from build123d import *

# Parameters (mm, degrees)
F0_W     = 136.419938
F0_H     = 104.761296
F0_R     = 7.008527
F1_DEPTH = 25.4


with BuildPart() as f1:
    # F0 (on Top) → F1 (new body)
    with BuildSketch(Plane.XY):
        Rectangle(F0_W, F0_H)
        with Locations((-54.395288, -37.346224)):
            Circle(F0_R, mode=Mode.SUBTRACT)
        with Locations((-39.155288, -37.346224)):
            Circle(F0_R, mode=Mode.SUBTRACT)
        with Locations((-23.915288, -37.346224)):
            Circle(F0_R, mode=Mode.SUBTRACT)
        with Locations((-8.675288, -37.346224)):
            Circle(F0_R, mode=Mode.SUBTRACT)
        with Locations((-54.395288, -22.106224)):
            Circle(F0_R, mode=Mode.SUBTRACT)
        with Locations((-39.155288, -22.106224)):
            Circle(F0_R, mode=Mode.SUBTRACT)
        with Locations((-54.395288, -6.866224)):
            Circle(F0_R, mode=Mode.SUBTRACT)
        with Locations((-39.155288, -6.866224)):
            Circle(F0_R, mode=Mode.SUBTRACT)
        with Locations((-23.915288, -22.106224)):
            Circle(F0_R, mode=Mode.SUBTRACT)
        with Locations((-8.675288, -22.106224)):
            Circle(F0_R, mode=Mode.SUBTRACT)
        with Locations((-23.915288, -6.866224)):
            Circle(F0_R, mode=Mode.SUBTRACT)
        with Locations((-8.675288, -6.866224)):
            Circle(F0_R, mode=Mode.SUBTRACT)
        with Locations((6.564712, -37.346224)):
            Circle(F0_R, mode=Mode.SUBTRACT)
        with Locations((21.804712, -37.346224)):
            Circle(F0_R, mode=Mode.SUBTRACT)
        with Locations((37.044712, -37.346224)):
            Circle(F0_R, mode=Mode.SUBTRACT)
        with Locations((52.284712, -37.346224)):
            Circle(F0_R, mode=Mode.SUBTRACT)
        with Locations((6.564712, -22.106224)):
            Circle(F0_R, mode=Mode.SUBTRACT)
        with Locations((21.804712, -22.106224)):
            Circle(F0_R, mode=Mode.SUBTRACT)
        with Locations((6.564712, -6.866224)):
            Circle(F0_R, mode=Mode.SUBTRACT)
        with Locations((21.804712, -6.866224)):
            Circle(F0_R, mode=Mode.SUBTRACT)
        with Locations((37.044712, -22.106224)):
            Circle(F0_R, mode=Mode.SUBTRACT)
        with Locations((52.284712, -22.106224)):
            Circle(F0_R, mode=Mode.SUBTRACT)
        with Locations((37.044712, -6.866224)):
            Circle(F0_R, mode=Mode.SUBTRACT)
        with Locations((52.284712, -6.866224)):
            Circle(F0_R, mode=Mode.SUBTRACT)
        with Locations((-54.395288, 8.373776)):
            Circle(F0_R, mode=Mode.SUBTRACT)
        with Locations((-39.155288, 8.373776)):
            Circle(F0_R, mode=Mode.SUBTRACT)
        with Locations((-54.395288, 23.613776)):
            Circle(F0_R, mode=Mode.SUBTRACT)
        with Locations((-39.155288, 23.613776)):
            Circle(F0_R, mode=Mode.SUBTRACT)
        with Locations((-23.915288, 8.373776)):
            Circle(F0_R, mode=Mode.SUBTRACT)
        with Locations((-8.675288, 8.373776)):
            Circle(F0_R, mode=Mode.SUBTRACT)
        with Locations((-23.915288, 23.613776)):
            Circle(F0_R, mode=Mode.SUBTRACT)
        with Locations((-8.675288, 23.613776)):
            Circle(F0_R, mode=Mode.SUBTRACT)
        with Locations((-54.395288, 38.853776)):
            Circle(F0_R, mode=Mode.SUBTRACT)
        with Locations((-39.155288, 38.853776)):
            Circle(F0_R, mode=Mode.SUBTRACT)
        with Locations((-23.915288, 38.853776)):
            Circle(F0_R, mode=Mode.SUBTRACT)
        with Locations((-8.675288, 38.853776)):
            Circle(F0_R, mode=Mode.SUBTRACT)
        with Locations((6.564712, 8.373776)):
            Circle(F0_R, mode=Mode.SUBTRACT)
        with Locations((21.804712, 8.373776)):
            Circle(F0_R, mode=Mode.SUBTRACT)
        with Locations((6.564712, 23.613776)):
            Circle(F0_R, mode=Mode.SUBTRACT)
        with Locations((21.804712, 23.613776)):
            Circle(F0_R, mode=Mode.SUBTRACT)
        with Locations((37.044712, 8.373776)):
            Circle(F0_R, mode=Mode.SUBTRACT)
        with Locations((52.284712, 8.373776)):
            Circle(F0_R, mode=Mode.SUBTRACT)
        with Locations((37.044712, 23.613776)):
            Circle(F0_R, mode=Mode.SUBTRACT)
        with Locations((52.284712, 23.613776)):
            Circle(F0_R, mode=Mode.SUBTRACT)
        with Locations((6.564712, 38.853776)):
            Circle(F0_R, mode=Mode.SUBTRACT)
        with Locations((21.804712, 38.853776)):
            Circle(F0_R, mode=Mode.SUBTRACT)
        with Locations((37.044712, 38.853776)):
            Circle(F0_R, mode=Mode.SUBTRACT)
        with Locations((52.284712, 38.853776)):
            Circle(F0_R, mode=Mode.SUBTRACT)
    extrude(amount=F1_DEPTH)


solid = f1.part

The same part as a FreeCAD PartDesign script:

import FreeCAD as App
import Part
import Sketcher
from FreeCAD import Vector
Q = App.Units.Quantity

doc = App.newDocument("Part")
body = doc.addObject("PartDesign::Body", "Body")

# Sketch on XY plane
sketch1 = doc.addObject("Sketcher::SketchObject", "Sketch")
body.addObject(sketch1)
sketch1.AttachmentSupport = (doc.XY_Plane, [""])
sketch1.MapMode = "FlatFace"
sketch1.addGeometry(Part.LineSegment(Vector(-68, 52, 0), Vector(-68, -52, 0)), False)
sketch1.addGeometry(Part.LineSegment(Vector(-68, -52, 0), Vector(68, -52, 0)), False)
sketch1.addGeometry(Part.LineSegment(Vector(68, -52, 0), Vector(68, 52, 0)), False)
sketch1.addGeometry(Part.LineSegment(Vector(68, 52, 0), Vector(-68, 52, 0)), False)
sketch1.addGeometry(Part.Circle(Vector(-54, -37, 0), Vector(0, 0, 1), 7), False)
sketch1.addGeometry(Part.Circle(Vector(-39, -37, 0), Vector(0, 0, 1), 7), False)
sketch1.addGeometry(Part.Circle(Vector(-54, -22, 0), Vector(0, 0, 1), 7), False)
sketch1.addGeometry(Part.Circle(Vector(-39, -22, 0), Vector(0, 0, 1), 7), False)
sketch1.addGeometry(Part.Circle(Vector(-24, -37, 0), Vector(0, 0, 1), 7), False)
sketch1.addGeometry(Part.Circle(Vector(-9, -37, 0), Vector(0, 0, 1), 7), False)
sketch1.addGeometry(Part.Circle(Vector(-24, -22, 0), Vector(0, 0, 1), 7), False)
sketch1.addGeometry(Part.Circle(Vector(-9, -22, 0), Vector(0, 0, 1), 7), False)
sketch1.addGeometry(Part.Circle(Vector(-54, -7, 0), Vector(0, 0, 1), 7), False)
sketch1.addGeometry(Part.Circle(Vector(-39, -7, 0), Vector(0, 0, 1), 7), False)
sketch1.addGeometry(Part.Circle(Vector(-24, -7, 0), Vector(0, 0, 1), 7), False)
sketch1.addGeometry(Part.Circle(Vector(-9, -7, 0), Vector(0, 0, 1), 7), False)
sketch1.addGeometry(Part.Circle(Vector(7, -37, 0), Vector(0, 0, 1), 7), False)
sketch1.addGeometry(Part.Circle(Vector(22, -37, 0), Vector(0, 0, 1), 7), False)
sketch1.addGeometry(Part.Circle(Vector(7, -22, 0), Vector(0, 0, 1), 7), False)
sketch1.addGeometry(Part.Circle(Vector(22, -22, 0), Vector(0, 0, 1), 7), False)
sketch1.addGeometry(Part.Circle(Vector(37, -37, 0), Vector(0, 0, 1), 7), False)
sketch1.addGeometry(Part.Circle(Vector(52, -37, 0), Vector(0, 0, 1), 7), False)
sketch1.addGeometry(Part.Circle(Vector(37, -22, 0), Vector(0, 0, 1), 7), False)
sketch1.addGeometry(Part.Circle(Vector(52, -22, 0), Vector(0, 0, 1), 7), False)
sketch1.addGeometry(Part.Circle(Vector(7, -7, 0), Vector(0, 0, 1), 7), False)
sketch1.addGeometry(Part.Circle(Vector(22, -7, 0), Vector(0, 0, 1), 7), False)
sketch1.addGeometry(Part.Circle(Vector(37, -7, 0), Vector(0, 0, 1), 7), False)
sketch1.addGeometry(Part.Circle(Vector(52, -7, 0), Vector(0, 0, 1), 7), False)
sketch1.addGeometry(Part.Circle(Vector(-54, 8, 0), Vector(0, 0, 1), 7), False)
sketch1.addGeometry(Part.Circle(Vector(-39, 8, 0), Vector(0, 0, 1), 7), False)
sketch1.addGeometry(Part.Circle(Vector(-24, 8, 0), Vector(0, 0, 1), 7), False)
sketch1.addGeometry(Part.Circle(Vector(-9, 8, 0), Vector(0, 0, 1), 7), False)
sketch1.addGeometry(Part.Circle(Vector(-54, 24, 0), Vector(0, 0, 1), 7), False)
sketch1.addGeometry(Part.Circle(Vector(-39, 24, 0), Vector(0, 0, 1), 7), False)
sketch1.addGeometry(Part.Circle(Vector(-54, 39, 0), Vector(0, 0, 1), 7), False)
sketch1.addGeometry(Part.Circle(Vector(-39, 39, 0), Vector(0, 0, 1), 7), False)
sketch1.addGeometry(Part.Circle(Vector(-24, 24, 0), Vector(0, 0, 1), 7), False)
sketch1.addGeometry(Part.Circle(Vector(-9, 24, 0), Vector(0, 0, 1), 7), False)
sketch1.addGeometry(Part.Circle(Vector(-24, 39, 0), Vector(0, 0, 1), 7), False)
sketch1.addGeometry(Part.Circle(Vector(-9, 39, 0), Vector(0, 0, 1), 7), False)
sketch1.addGeometry(Part.Circle(Vector(7, 8, 0), Vector(0, 0, 1), 7), False)
sketch1.addGeometry(Part.Circle(Vector(22, 8, 0), Vector(0, 0, 1), 7), False)
sketch1.addGeometry(Part.Circle(Vector(37, 8, 0), Vector(0, 0, 1), 7), False)
sketch1.addGeometry(Part.Circle(Vector(52, 8, 0), Vector(0, 0, 1), 7), False)
sketch1.addGeometry(Part.Circle(Vector(7, 24, 0), Vector(0, 0, 1), 7), False)
sketch1.addGeometry(Part.Circle(Vector(22, 24, 0), Vector(0, 0, 1), 7), False)
sketch1.addGeometry(Part.Circle(Vector(7, 39, 0), Vector(0, 0, 1), 7), False)
sketch1.addGeometry(Part.Circle(Vector(22, 39, 0), Vector(0, 0, 1), 7), False)
sketch1.addGeometry(Part.Circle(Vector(37, 24, 0), Vector(0, 0, 1), 7), False)
sketch1.addGeometry(Part.Circle(Vector(52, 24, 0), Vector(0, 0, 1), 7), False)
sketch1.addGeometry(Part.Circle(Vector(37, 39, 0), Vector(0, 0, 1), 7), False)
sketch1.addGeometry(Part.Circle(Vector(52, 39, 0), Vector(0, 0, 1), 7), False)
sketch1.addConstraint(Sketcher.Constraint("Coincident", 0, 2, 1, 1))
sketch1.addConstraint(Sketcher.Constraint("Coincident", 1, 2, 2, 1))
sketch1.addConstraint(Sketcher.Constraint("Coincident", 2, 2, 3, 1))
sketch1.addConstraint(Sketcher.Constraint("Coincident", 3, 2, 0, 1))
sketch1.addConstraint(Sketcher.Constraint("Vertical", 0))
sketch1.addConstraint(Sketcher.Constraint("Horizontal", 1))
sketch1.addConstraint(Sketcher.Constraint("Vertical", 2))
sketch1.addConstraint(Sketcher.Constraint("Horizontal", 3))
sketch1.addConstraint(Sketcher.Constraint("Equal", 4, 5))
sketch1.addConstraint(Sketcher.Constraint("Equal", 5, 6))
sketch1.addConstraint(Sketcher.Constraint("Equal", 6, 7))
sketch1.addConstraint(Sketcher.Constraint("Equal", 7, 8))
sketch1.addConstraint(Sketcher.Constraint("Equal", 8, 9))
sketch1.addConstraint(Sketcher.Constraint("Equal", 9, 10))
sketch1.addConstraint(Sketcher.Constraint("Equal", 10, 11))
sketch1.addConstraint(Sketcher.Constraint("Equal", 11, 12))
sketch1.addConstraint(Sketcher.Constraint("Equal", 12, 13))
sketch1.addConstraint(Sketcher.Constraint("Equal", 13, 14))
sketch1.addConstraint(Sketcher.Constraint("Equal", 14, 15))
sketch1.addConstraint(Sketcher.Constraint("Equal", 15, 16))
sketch1.addConstraint(Sketcher.Constraint("Equal", 16, 17))
sketch1.addConstraint(Sketcher.Constraint("Equal", 17, 18))
sketch1.addConstraint(Sketcher.Constraint("Equal", 18, 19))
sketch1.addConstraint(Sketcher.Constraint("Equal", 19, 20))
sketch1.addConstraint(Sketcher.Constraint("Equal", 20, 21))
sketch1.addConstraint(Sketcher.Constraint("Equal", 21, 22))
sketch1.addConstraint(Sketcher.Constraint("Equal", 22, 23))
sketch1.addConstraint(Sketcher.Constraint("Equal", 23, 24))
sketch1.addConstraint(Sketcher.Constraint("Equal", 24, 25))
sketch1.addConstraint(Sketcher.Constraint("Equal", 25, 26))
sketch1.addConstraint(Sketcher.Constraint("Equal", 26, 27))
sketch1.addConstraint(Sketcher.Constraint("Equal", 27, 28))
sketch1.addConstraint(Sketcher.Constraint("Equal", 28, 29))
sketch1.addConstraint(Sketcher.Constraint("Equal", 29, 30))
sketch1.addConstraint(Sketcher.Constraint("Equal", 30, 31))
sketch1.addConstraint(Sketcher.Constraint("Equal", 31, 32))
sketch1.addConstraint(Sketcher.Constraint("Equal", 32, 33))
sketch1.addConstraint(Sketcher.Constraint("Equal", 33, 34))
sketch1.addConstraint(Sketcher.Constraint("Equal", 34, 35))
sketch1.addConstraint(Sketcher.Constraint("Equal", 35, 36))
sketch1.addConstraint(Sketcher.Constraint("Equal", 36, 37))
sketch1.addConstraint(Sketcher.Constraint("Equal", 37, 38))
sketch1.addConstraint(Sketcher.Constraint("Equal", 38, 39))
sketch1.addConstraint(Sketcher.Constraint("Equal", 39, 40))
sketch1.addConstraint(Sketcher.Constraint("Equal", 40, 41))
sketch1.addConstraint(Sketcher.Constraint("Equal", 41, 42))
sketch1.addConstraint(Sketcher.Constraint("Equal", 42, 43))
sketch1.addConstraint(Sketcher.Constraint("Equal", 43, 44))
sketch1.addConstraint(Sketcher.Constraint("Equal", 44, 45))
sketch1.addConstraint(Sketcher.Constraint("Equal", 45, 46))
sketch1.addConstraint(Sketcher.Constraint("Equal", 46, 47))
sketch1.addConstraint(Sketcher.Constraint("Equal", 47, 48))
sketch1.addConstraint(Sketcher.Constraint("Equal", 48, 49))
sketch1.addConstraint(Sketcher.Constraint("Equal", 49, 50))
sketch1.addConstraint(Sketcher.Constraint("Equal", 50, 51))
sketch1.addConstraint(Sketcher.Constraint("Symmetric", 0, 2, 2, 2, -1, 1))
sketch1.addConstraint(Sketcher.Constraint("Horizontal", 4, 3, 5, 3))
sketch1.addConstraint(Sketcher.Constraint("Horizontal", 6, 3, 7, 3))
sketch1.addConstraint(Sketcher.Constraint("Horizontal", 5, 3, 8, 3))
sketch1.addConstraint(Sketcher.Constraint("Horizontal", 8, 3, 9, 3))
sketch1.addConstraint(Sketcher.Constraint("Horizontal", 7, 3, 10, 3))
sketch1.addConstraint(Sketcher.Constraint("Horizontal", 10, 3, 11, 3))
sketch1.addConstraint(Sketcher.Constraint("Horizontal", 12, 3, 13, 3))
sketch1.addConstraint(Sketcher.Constraint("Horizontal", 13, 3, 14, 3))
sketch1.addConstraint(Sketcher.Constraint("Horizontal", 14, 3, 15, 3))
sketch1.addConstraint(Sketcher.Constraint("Horizontal", 9, 3, 16, 3))
sketch1.addConstraint(Sketcher.Constraint("Horizontal", 16, 3, 17, 3))
sketch1.addConstraint(Sketcher.Constraint("Horizontal", 11, 3, 18, 3))
sketch1.addConstraint(Sketcher.Constraint("Horizontal", 18, 3, 19, 3))
sketch1.addConstraint(Sketcher.Constraint("Horizontal", 17, 3, 20, 3))
sketch1.addConstraint(Sketcher.Constraint("Horizontal", 20, 3, 21, 3))
sketch1.addConstraint(Sketcher.Constraint("Horizontal", 19, 3, 22, 3))
sketch1.addConstraint(Sketcher.Constraint("Horizontal", 22, 3, 23, 3))
sketch1.addConstraint(Sketcher.Constraint("Horizontal", 15, 3, 24, 3))
sketch1.addConstraint(Sketcher.Constraint("Horizontal", 24, 3, 25, 3))
sketch1.addConstraint(Sketcher.Constraint("Horizontal", 25, 3, 26, 3))
sketch1.addConstraint(Sketcher.Constraint("Horizontal", 26, 3, 27, 3))
sketch1.addConstraint(Sketcher.Constraint("Horizontal", 28, 3, 29, 3))
sketch1.addConstraint(Sketcher.Constraint("Horizontal", 29, 3, 30, 3))
sketch1.addConstraint(Sketcher.Constraint("Horizontal", 30, 3, 31, 3))
sketch1.addConstraint(Sketcher.Constraint("Horizontal", 32, 3, 33, 3))
sketch1.addConstraint(Sketcher.Constraint("Horizontal", 34, 3, 35, 3))
sketch1.addConstraint(Sketcher.Constraint("Horizontal", 33, 3, 36, 3))
sketch1.addConstraint(Sketcher.Constraint("Horizontal", 36, 3, 37, 3))
sketch1.addConstraint(Sketcher.Constraint("Horizontal", 35, 3, 38, 3))
sketch1.addConstraint(Sketcher.Constraint("Horizontal", 38, 3, 39, 3))
sketch1.addConstraint(Sketcher.Constraint("Horizontal", 31, 3, 40, 3))
sketch1.addConstraint(Sketcher.Constraint("Horizontal", 40, 3, 41, 3))
sketch1.addConstraint(Sketcher.Constraint("Horizontal", 41, 3, 42, 3))
sketch1.addConstraint(Sketcher.Constraint("Horizontal", 42, 3, 43, 3))
sketch1.addConstraint(Sketcher.Constraint("Horizontal", 37, 3, 44, 3))
sketch1.addConstraint(Sketcher.Constraint("Horizontal", 44, 3, 45, 3))
sketch1.addConstraint(Sketcher.Constraint("Horizontal", 39, 3, 46, 3))
sketch1.addConstraint(Sketcher.Constraint("Horizontal", 46, 3, 47, 3))
sketch1.addConstraint(Sketcher.Constraint("Horizontal", 45, 3, 48, 3))
sketch1.addConstraint(Sketcher.Constraint("Horizontal", 48, 3, 49, 3))
sketch1.addConstraint(Sketcher.Constraint("Horizontal", 47, 3, 50, 3))
sketch1.addConstraint(Sketcher.Constraint("Horizontal", 50, 3, 51, 3))
sketch1.addConstraint(Sketcher.Constraint("Vertical", 4, 3, 6, 3))
sketch1.addConstraint(Sketcher.Constraint("Vertical", 5, 3, 7, 3))
sketch1.addConstraint(Sketcher.Constraint("Vertical", 8, 3, 10, 3))
sketch1.addConstraint(Sketcher.Constraint("Vertical", 9, 3, 11, 3))
sketch1.addConstraint(Sketcher.Constraint("Vertical", 6, 3, 12, 3))
sketch1.addConstraint(Sketcher.Constraint("Vertical", 7, 3, 13, 3))
sketch1.addConstraint(Sketcher.Constraint("Vertical", 10, 3, 14, 3))
sketch1.addConstraint(Sketcher.Constraint("Vertical", 11, 3, 15, 3))
sketch1.addConstraint(Sketcher.Constraint("Vertical", 16, 3, 18, 3))
sketch1.addConstraint(Sketcher.Constraint("Vertical", 17, 3, 19, 3))
sketch1.addConstraint(Sketcher.Constraint("Vertical", 20, 3, 22, 3))
sketch1.addConstraint(Sketcher.Constraint("Vertical", 21, 3, 23, 3))
sketch1.addConstraint(Sketcher.Constraint("Vertical", 18, 3, 24, 3))
sketch1.addConstraint(Sketcher.Constraint("Vertical", 19, 3, 25, 3))
sketch1.addConstraint(Sketcher.Constraint("Vertical", 22, 3, 26, 3))
sketch1.addConstraint(Sketcher.Constraint("Vertical", 23, 3, 27, 3))
sketch1.addConstraint(Sketcher.Constraint("Vertical", 12, 3, 28, 3))
sketch1.addConstraint(Sketcher.Constraint("Vertical", 13, 3, 29, 3))
sketch1.addConstraint(Sketcher.Constraint("Vertical", 14, 3, 30, 3))
sketch1.addConstraint(Sketcher.Constraint("Vertical", 15, 3, 31, 3))
sketch1.addConstraint(Sketcher.Constraint("Vertical", 28, 3, 32, 3))
sketch1.addConstraint(Sketcher.Constraint("Vertical", 29, 3, 33, 3))
sketch1.addConstraint(Sketcher.Constraint("Vertical", 32, 3, 34, 3))
sketch1.addConstraint(Sketcher.Constraint("Vertical", 33, 3, 35, 3))
sketch1.addConstraint(Sketcher.Constraint("Vertical", 30, 3, 36, 3))
sketch1.addConstraint(Sketcher.Constraint("Vertical", 31, 3, 37, 3))
sketch1.addConstraint(Sketcher.Constraint("Vertical", 36, 3, 38, 3))
sketch1.addConstraint(Sketcher.Constraint("Vertical", 37, 3, 39, 3))
sketch1.addConstraint(Sketcher.Constraint("Vertical", 24, 3, 40, 3))
sketch1.addConstraint(Sketcher.Constraint("Vertical", 25, 3, 41, 3))
sketch1.addConstraint(Sketcher.Constraint("Vertical", 26, 3, 42, 3))
sketch1.addConstraint(Sketcher.Constraint("Vertical", 27, 3, 43, 3))
sketch1.addConstraint(Sketcher.Constraint("Vertical", 40, 3, 44, 3))
sketch1.addConstraint(Sketcher.Constraint("Vertical", 41, 3, 45, 3))
sketch1.addConstraint(Sketcher.Constraint("Vertical", 44, 3, 46, 3))
sketch1.addConstraint(Sketcher.Constraint("Vertical", 45, 3, 47, 3))
sketch1.addConstraint(Sketcher.Constraint("Vertical", 42, 3, 48, 3))
sketch1.addConstraint(Sketcher.Constraint("Vertical", 43, 3, 49, 3))
sketch1.addConstraint(Sketcher.Constraint("Vertical", 48, 3, 50, 3))
sketch1.addConstraint(Sketcher.Constraint("Vertical", 49, 3, 51, 3))
sketch1.addConstraint(Sketcher.Constraint("DistanceX", 4, 3, 5, 3, Q("0.6 in")))
sketch1.addConstraint(Sketcher.Constraint("DistanceY", 4, 3, 6, 3, Q("0.6 in")))
sketch1.addConstraint(Sketcher.Constraint("DistanceX", 5, 3, 8, 3, Q("0.6 in")))
sketch1.addConstraint(Sketcher.Constraint("DistanceX", 8, 3, 9, 3, Q("0.6 in")))
sketch1.addConstraint(Sketcher.Constraint("DistanceY", 6, 3, 12, 3, Q("0.6 in")))
sketch1.addConstraint(Sketcher.Constraint("DistanceX", 9, 3, 16, 3, Q("0.6 in")))
sketch1.addConstraint(Sketcher.Constraint("DistanceX", 16, 3, 17, 3, Q("0.6 in")))
sketch1.addConstraint(Sketcher.Constraint("DistanceX", 17, 3, 20, 3, Q("0.6 in")))
sketch1.addConstraint(Sketcher.Constraint("DistanceX", 20, 3, 21, 3, Q("0.6 in")))
sketch1.addConstraint(Sketcher.Constraint("DistanceY", 12, 3, 28, 3, Q("0.6 in")))
sketch1.addConstraint(Sketcher.Constraint("DistanceY", 28, 3, 32, 3, Q("0.6 in")))
sketch1.addConstraint(Sketcher.Constraint("DistanceY", 32, 3, 34, 3, Q("0.6 in")))
sketch1.addConstraint(Sketcher.Constraint("Diameter", 4, 14.017054))
sketch1.addConstraint(Sketcher.Constraint("DistanceX", 1, 1, 1, 2, 136.419938))
sketch1.addConstraint(Sketcher.Constraint("DistanceY", 0, 2, 0, 1, 104.761296))
sketch1.addConstraint(Sketcher.Constraint("DistanceX", 8, 3, -1, 1, 23.915288))
sketch1.addConstraint(Sketcher.Constraint("DistanceY", 51, 3, 2, 2, 13.526872))
pad1 = doc.addObject("PartDesign::Pad", "Pad")
body.addObject(pad1)
pad1.Profile = sketch1
pad1.Length = Q("1 in")

doc.recompute()
